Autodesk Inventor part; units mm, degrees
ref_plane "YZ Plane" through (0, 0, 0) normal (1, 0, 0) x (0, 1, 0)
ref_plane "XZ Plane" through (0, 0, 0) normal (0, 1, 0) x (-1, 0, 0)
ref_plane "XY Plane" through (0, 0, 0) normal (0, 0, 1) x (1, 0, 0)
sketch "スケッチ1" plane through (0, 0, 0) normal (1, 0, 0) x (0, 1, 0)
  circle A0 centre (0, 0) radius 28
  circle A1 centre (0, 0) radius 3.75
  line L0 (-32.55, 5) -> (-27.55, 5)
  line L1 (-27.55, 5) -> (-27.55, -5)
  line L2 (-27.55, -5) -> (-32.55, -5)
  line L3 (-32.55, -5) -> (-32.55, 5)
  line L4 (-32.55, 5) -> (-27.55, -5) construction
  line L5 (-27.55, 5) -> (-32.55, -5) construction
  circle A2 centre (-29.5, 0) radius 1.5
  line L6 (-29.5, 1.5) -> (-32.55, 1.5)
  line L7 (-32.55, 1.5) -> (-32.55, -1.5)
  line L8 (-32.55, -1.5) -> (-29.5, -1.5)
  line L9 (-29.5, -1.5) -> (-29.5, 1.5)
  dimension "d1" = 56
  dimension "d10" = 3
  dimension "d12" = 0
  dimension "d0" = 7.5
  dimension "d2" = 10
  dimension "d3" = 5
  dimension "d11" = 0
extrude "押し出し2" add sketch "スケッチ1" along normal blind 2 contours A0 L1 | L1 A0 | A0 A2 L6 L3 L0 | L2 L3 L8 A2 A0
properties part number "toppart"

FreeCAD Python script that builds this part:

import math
import FreeCAD as App
import Part
import Sketcher

V = App.Vector

doc = App.newDocument("Part")
body = doc.addObject("PartDesign::Body", "Body")

# Sketch on YZ plane
sketch1 = body.newObject("Sketcher::SketchObject", "Sketch")
sketch1.AttachmentSupport = (doc.getObject("YZ_Plane"), [""])
sketch1.MapMode = "FlatFace"
sketch1.addGeometry([
    Part.ArcOfCircle(Part.Circle(V(0, 0, 0), V(0, 0, 1), 28), math.radians(-170), math.radians(170)),  # 0
    Part.LineSegment(V(-27.6, 5, 0), V(-32.5, 5, 0)),  # 1
    Part.LineSegment(V(-32.5, 5, 0), V(-32.5, 1.5, 0)),  # 2
    Part.LineSegment(V(-32.5, 1.5, 0), V(-29.5, 1.5, 0)),  # 3
    Part.ArcOfCircle(Part.Circle(V(-29.5, 0, 0), V(0, 0, 1), 1.5), math.radians(-90), math.radians(90)),  # 4
    Part.LineSegment(V(-29.5, -1.5, 0), V(-32.5, -1.5, 0)),  # 5
    Part.LineSegment(V(-32.5, -1.5, 0), V(-32.5, -5, 0)),  # 6
    Part.LineSegment(V(-32.5, -5, 0), V(-27.6, -5, 0)),  # 7
    Part.Circle(V(0, 0, 0), V(0, 0, 1), 3.8),  # 8
], False)
sketch1.addConstraint([
    Sketcher.Constraint("Coincident", 0, 2, 1, 1),
    Sketcher.Constraint("Coincident", 1, 2, 2, 1),
    Sketcher.Constraint("Coincident", 2, 2, 3, 1),
    Sketcher.Constraint("Tangent", 3, 2, 4, 2),
    Sketcher.Constraint("Tangent", 4, 1, 5, 1),
    Sketcher.Constraint("Coincident", 5, 2, 6, 1),
    Sketcher.Constraint("Coincident", 6, 2, 7, 1),
    Sketcher.Constraint("Coincident", 7, 2, 0, 1),
    Sketcher.Constraint("Horizontal", 1),
    Sketcher.Constraint("Vertical", 2),
    Sketcher.Constraint("Horizontal", 3),
    Sketcher.Constraint("Horizontal", 5),
    Sketcher.Constraint("Vertical", 6),
    Sketcher.Constraint("Horizontal", 7),
    Sketcher.Constraint("Coincident", 0, 3, -1, 1),
    Sketcher.Constraint("Coincident", 8, 3, -1, 1),
    Sketcher.Constraint("Symmetric", 2, 2, 5, 2, -1),
    Sketcher.Constraint("Vertical", 0, 2, 7, 2),
    Sketcher.Constraint("Radius", 0, 28.0),
    Sketcher.Constraint("Diameter", 8, 7.5),
    Sketcher.Constraint("Radius", 4, 1.5),
    Sketcher.Constraint("DistanceX", 1, 2, 1, 1, 5.0),
    Sketcher.Constraint("DistanceY", -1, 1, 0, 2, 5.0),
    Sketcher.Constraint("DistanceX", 3, 1, 3, 2, 3.05),
])
pad1 = body.newObject("PartDesign::Pad", "Pad")
pad1.Profile = sketch1
pad1.Length = 2

doc.recompute()
